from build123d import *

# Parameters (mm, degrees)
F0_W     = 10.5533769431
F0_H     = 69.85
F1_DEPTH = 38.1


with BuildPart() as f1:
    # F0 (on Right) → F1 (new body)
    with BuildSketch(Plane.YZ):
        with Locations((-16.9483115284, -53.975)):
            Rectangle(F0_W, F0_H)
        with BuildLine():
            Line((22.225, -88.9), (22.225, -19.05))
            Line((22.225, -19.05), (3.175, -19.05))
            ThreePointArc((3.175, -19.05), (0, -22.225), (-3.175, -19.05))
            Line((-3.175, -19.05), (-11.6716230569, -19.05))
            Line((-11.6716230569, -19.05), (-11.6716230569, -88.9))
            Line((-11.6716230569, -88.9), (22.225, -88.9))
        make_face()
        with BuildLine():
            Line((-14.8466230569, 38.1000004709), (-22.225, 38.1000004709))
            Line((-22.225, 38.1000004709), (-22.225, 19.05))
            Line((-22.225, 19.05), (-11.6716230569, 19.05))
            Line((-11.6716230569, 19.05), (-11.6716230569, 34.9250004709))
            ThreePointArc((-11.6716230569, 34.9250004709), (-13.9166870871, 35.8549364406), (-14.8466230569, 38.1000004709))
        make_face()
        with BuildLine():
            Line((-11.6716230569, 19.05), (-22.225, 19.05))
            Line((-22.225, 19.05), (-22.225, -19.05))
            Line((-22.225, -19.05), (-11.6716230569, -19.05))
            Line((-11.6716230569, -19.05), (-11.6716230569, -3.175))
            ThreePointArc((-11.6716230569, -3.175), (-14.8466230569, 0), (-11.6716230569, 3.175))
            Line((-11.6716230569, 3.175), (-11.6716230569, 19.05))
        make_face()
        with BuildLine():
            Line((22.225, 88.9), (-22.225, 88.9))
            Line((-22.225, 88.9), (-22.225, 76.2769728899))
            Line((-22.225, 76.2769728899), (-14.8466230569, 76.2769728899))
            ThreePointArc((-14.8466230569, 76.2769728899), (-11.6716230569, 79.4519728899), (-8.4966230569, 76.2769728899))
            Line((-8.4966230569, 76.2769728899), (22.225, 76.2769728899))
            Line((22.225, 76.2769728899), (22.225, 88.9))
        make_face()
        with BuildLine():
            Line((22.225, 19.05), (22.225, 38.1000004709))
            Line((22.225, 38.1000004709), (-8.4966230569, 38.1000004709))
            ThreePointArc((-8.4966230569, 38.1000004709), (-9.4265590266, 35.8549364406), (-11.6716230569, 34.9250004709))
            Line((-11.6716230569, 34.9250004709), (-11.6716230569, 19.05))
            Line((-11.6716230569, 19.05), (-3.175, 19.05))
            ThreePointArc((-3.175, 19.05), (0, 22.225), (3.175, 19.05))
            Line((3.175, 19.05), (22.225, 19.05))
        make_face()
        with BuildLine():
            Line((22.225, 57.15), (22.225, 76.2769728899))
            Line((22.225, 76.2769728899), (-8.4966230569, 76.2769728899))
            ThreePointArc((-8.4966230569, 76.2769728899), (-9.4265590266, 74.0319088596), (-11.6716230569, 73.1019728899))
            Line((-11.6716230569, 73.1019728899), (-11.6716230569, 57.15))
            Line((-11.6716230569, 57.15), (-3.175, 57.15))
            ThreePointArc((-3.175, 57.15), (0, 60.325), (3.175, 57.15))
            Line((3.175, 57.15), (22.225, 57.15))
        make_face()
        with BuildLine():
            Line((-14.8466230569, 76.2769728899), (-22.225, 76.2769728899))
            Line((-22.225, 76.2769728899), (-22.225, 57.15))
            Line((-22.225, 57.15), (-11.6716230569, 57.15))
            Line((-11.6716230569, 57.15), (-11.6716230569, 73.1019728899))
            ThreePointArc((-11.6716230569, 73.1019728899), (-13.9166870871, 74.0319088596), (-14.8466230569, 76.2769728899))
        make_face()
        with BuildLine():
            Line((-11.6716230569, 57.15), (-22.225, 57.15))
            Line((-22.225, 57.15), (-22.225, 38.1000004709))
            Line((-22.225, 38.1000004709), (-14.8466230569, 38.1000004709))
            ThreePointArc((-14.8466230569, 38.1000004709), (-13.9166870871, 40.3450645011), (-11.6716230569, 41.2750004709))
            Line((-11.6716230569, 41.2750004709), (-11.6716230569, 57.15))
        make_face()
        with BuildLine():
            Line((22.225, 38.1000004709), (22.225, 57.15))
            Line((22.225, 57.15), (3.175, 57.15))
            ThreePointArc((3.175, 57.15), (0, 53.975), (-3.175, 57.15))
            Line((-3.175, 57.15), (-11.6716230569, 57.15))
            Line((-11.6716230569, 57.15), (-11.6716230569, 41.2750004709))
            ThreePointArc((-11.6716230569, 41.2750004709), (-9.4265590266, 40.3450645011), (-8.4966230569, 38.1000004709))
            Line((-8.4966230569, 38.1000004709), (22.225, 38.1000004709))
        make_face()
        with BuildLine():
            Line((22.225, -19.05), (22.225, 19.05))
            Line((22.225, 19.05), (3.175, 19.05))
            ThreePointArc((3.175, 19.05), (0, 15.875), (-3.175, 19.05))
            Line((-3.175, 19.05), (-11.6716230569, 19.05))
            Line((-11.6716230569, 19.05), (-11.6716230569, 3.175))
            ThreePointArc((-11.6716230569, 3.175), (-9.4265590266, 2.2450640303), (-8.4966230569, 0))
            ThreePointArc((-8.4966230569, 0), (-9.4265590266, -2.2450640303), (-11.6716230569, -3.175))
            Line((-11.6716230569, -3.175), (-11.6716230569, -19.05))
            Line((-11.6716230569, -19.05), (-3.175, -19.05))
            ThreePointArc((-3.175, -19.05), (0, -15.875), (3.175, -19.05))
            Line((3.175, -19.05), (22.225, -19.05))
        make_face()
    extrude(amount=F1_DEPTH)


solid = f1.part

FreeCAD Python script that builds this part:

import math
import FreeCAD as App
import Part
import Sketcher
from FreeCAD import Vector
Q = App.Units.Quantity


def add_polygon(sketch, points):
    """Adds a closed chain of lines whose ends are joined by coincident constraints."""
    first, n = sketch.GeometryCount, len(points)
    for a, b in zip(points, points[1:] + points[:1]):
        sketch.addGeometry(Part.LineSegment(App.Vector(*a, 0), App.Vector(*b, 0)), False)
    for i in range(n):
        sketch.addConstraint(Sketcher.Constraint("Coincident", first + i, 2, first + (i + 1) % n, 1))

doc = App.newDocument("Part")
body = doc.addObject("PartDesign::Body", "Body")

sketch1 = body.newObject("Sketcher::SketchObject", "Sketch")
sketch1.AttachmentSupport = (doc.getObject("YZ_Plane"), [""])
sketch1.MapMode = "FlatFace"
add_polygon(sketch1, [(-22.2, 88.9), (-22.2, -88.9), (22.2, -88.9), (22.2, 88.9)])
sketch1.addGeometry(Part.Circle(Vector(0, -19.1, 0), Vector(0, 0, 1), 3.2), False)
sketch1.addGeometry(Part.ArcOfCircle(Part.Circle(Vector(-11.7, 0, 0), Vector(0, 0, 1), 3.2), math.radians(90), math.radians(270)), False)
sketch1.addGeometry(Part.ArcOfCircle(Part.Circle(Vector(-11.7, 0, 0), Vector(0, 0, 1), 3.2), math.radians(0), math.radians(90)), False)
sketch1.addGeometry(Part.ArcOfCircle(Part.Circle(Vector(-11.7, 0, 0), Vector(0, 0, 1), 3.2), math.radians(-90), math.radians(0)), False)
sketch1.addGeometry(Part.ArcOfCircle(Part.Circle(Vector(-11.7, 38.1, 0), Vector(0, 0, 1), 3.2), math.radians(-90), math.radians(0)), False)
sketch1.addGeometry(Part.ArcOfCircle(Part.Circle(Vector(-11.7, 38.1, 0), Vector(0, 0, 1), 3.2), math.radians(180), math.radians(270)), False)
sketch1.addGeometry(Part.ArcOfCircle(Part.Circle(Vector(-11.7, 38.1, 0), Vector(0, 0, 1), 3.2), math.radians(90), math.radians(180)), False)
sketch1.addGeometry(Part.ArcOfCircle(Part.Circle(Vector(-11.7, 38.1, 0), Vector(0, 0, 1), 3.2), math.radians(0), math.radians(90)), False)
sketch1.addGeometry(Part.Circle(Vector(0, 19.1, 0), Vector(0, 0, 1), 3.2), False)
sketch1.addGeometry(Part.ArcOfCircle(Part.Circle(Vector(-11.7, 76.3, 0), Vector(0, 0, 1), 3.2), math.radians(180), math.radians(270)), False)
sketch1.addGeometry(Part.ArcOfCircle(Part.Circle(Vector(-11.7, 76.3, 0), Vector(0, 0, 1), 3.2), math.radians(0), math.radians(180)), False)
sketch1.addGeometry(Part.ArcOfCircle(Part.Circle(Vector(-11.7, 76.3, 0), Vector(0, 0, 1), 3.2), math.radians(-90), math.radians(0)), False)
sketch1.addGeometry(Part.Circle(Vector(0, 57.1, 0), Vector(0, 0, 1), 3.2), False)
sketch1.addConstraint([
    Sketcher.Constraint("Tangent", 5, 1, 6, 2),
    Sketcher.Constraint("Tangent", 6, 1, 7, 2),
    Sketcher.Constraint("Tangent", 7, 1, 5, 2),
    Sketcher.Constraint("Tangent", 8, 1, 9, 2),
    Sketcher.Constraint("Tangent", 9, 1, 10, 2),
    Sketcher.Constraint("Tangent", 10, 1, 11, 2),
    Sketcher.Constraint("Tangent", 11, 1, 8, 2),
    Sketcher.Constraint("Tangent", 13, 1, 14, 2),
    Sketcher.Constraint("Tangent", 14, 1, 15, 2),
    Sketcher.Constraint("Tangent", 15, 1, 13, 2),
    Sketcher.Constraint("Vertical", 0),
    Sketcher.Constraint("Horizontal", 1),
    Sketcher.Constraint("Vertical", 2),
    Sketcher.Constraint("Horizontal", 3),
    Sketcher.Constraint("Equal", 4, 5),
    Sketcher.Constraint("Equal", 7, 8),
    Sketcher.Constraint("Equal", 8, 9),
    Sketcher.Constraint("Equal", 11, 12),
    Sketcher.Constraint("Equal", 12, 13),
    Sketcher.Constraint("Equal", 15, 16),
    Sketcher.Constraint("Symmetric", 4, 3, 12, 3, -1, 1),
    Sketcher.Constraint("Symmetric", 0, 2, 2, 2, -1, 1),
    Sketcher.Constraint("Symmetric", 5, 1, 7, 1, -1),
    Sketcher.Constraint("PointOnObject", 4, 3, -2),
    Sketcher.Constraint("PointOnObject", 16, 3, -2),
    Sketcher.Constraint("PointOnObject", 6, 1, -1),
    Sketcher.Constraint("Horizontal", 11, 3, 9, 1),
    Sketcher.Constraint("Horizontal", 9, 1, 11, 1),
    Sketcher.Constraint("Horizontal", 15, 3, 13, 1),
    Sketcher.Constraint("Horizontal", 13, 1, 14, 1),
    Sketcher.Constraint("Vertical", 7, 3, 8, 3),
    Sketcher.Constraint("Vertical", 11, 3, 13, 3),
    Sketcher.Constraint("Vertical", 15, 3, 5, 1),
    Sketcher.Constraint("Vertical", 7, 1, 8, 1),
    Sketcher.Constraint("Vertical", 8, 1, 10, 1),
    Sketcher.Constraint("Vertical", 10, 1, 15, 1),
    Sketcher.Constraint("Diameter", 4, Q("0.25 in")),
    Sketcher.Constraint("DistanceY", 0, 2, 0, 1, Q("7 in")),
    Sketcher.Constraint("DistanceY", 8, 3, 2, 2, Q("2 in")),
    Sketcher.Constraint("DistanceX", 1, 1, 1, 2, Q("1.75 in")),
    Sketcher.Constraint("DistanceY", 4, 3, -1, 1, Q("0.75 in")),
    Sketcher.Constraint("DistanceY", -1, 1, 16, 3, Q("2.25 in")),
    Sketcher.Constraint("DistanceX", 5, 3, -1, 1, Q("11.671623 mm")),
    Sketcher.Constraint("DistanceY", -1, 1, 13, 3, Q("76.276973 mm")),
])
pad1 = body.newObject("PartDesign::Pad", "Pad")
pad1.Profile = sketch1
pad1.Length = Q("1.5 in")

doc.recompute()
